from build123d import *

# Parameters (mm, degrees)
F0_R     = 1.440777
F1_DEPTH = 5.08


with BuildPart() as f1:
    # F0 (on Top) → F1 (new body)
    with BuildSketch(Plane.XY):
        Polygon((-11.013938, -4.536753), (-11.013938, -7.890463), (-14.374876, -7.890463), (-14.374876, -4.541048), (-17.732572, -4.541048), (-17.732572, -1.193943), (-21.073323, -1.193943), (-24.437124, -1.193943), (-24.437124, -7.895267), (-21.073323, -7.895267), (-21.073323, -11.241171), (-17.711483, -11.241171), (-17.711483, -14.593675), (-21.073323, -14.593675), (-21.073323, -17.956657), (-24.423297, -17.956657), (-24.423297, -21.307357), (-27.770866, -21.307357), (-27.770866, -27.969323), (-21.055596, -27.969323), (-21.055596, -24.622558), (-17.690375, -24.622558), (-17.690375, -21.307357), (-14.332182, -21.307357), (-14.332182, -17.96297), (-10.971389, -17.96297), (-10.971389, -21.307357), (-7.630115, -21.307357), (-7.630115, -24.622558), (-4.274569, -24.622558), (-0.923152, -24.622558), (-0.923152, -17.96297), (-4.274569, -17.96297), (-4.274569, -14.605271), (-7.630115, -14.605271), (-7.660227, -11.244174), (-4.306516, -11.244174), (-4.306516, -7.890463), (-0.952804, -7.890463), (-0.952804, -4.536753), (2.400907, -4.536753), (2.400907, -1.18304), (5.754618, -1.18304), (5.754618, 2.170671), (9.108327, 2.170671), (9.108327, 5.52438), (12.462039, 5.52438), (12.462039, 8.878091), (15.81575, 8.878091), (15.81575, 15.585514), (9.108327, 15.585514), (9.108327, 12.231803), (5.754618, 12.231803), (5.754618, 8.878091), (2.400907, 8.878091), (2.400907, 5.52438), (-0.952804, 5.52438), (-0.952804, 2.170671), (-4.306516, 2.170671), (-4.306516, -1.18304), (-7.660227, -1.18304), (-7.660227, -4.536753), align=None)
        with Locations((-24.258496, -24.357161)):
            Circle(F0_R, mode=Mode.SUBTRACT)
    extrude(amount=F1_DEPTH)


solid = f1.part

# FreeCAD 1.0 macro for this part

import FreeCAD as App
import Part
import Sketcher

V = App.Vector

doc = App.newDocument("Part")
params = doc.addObject("Spreadsheet::Sheet", "Params")
for row, (alias, value) in enumerate([
    ("pad1_length", "0.2 in"),
], start=1):
    params.set(f"A{row}", alias)
    params.set(f"B{row}", "=" + value)
    params.setAlias(f"B{row}", alias)

body = doc.addObject("PartDesign::Body", "Body")

sketch1 = body.newObject("Sketcher::SketchObject", "Sketch")
sketch1.AttachmentSupport = (doc.getObject("XY_Plane"), [""])
sketch1.MapMode = "FlatFace"
sketch1.addGeometry(Part.LineSegment(V(-11, -4.5, 0), V(-11, -7.9, 0)), False)
sketch1.addGeometry(Part.LineSegment(V(-11, -7.9, 0), V(-14.4, -7.9, 0)), False)
sketch1.addGeometry(Part.LineSegment(V(-14.4, -7.9, 0), V(-14.4, -4.5, 0)), False)
sketch1.addGeometry(Part.LineSegment(V(-14.4, -4.5, 0), V(-17.7, -4.5, 0)), False)
sketch1.addGeometry(Part.LineSegment(V(-17.7, -4.5, 0), V(-17.7, -1.2, 0)), False)
sketch1.addGeometry(Part.LineSegment(V(-17.7, -1.2, 0), V(-24.4, -1.2, 0)), False)
sketch1.addGeometry(Part.LineSegment(V(-24.4, -1.2, 0), V(-24.4, -7.9, 0)), False)
sketch1.addGeometry(Part.LineSegment(V(-24.4, -7.9, 0), V(-21.1, -7.9, 0)), False)
sketch1.addGeometry(Part.LineSegment(V(-21.1, -7.9, 0), V(-21.1, -11.2, 0)), False)
sketch1.addGeometry(Part.LineSegment(V(-21.1, -11.2, 0), V(-17.7, -11.2, 0)), False)
sketch1.addGeometry(Part.LineSegment(V(-17.7, -11.2, 0), V(-17.7, -14.6, 0)), False)
sketch1.addGeometry(Part.LineSegment(V(-17.7, -14.6, 0), V(-21.1, -14.6, 0)), False)
sketch1.addGeometry(Part.LineSegment(V(-21.1, -14.6, 0), V(-21.1, -18, 0)), False)
sketch1.addGeometry(Part.LineSegment(V(-21.1, -18, 0), V(-24.4, -18, 0)), False)
sketch1.addGeometry(Part.LineSegment(V(-24.4, -18, 0), V(-24.4, -21.3, 0)), False)
sketch1.addGeometry(Part.LineSegment(V(-24.4, -21.3, 0), V(-27.8, -21.3, 0)), False)
sketch1.addGeometry(Part.LineSegment(V(-27.8, -21.3, 0), V(-27.8, -28, 0)), False)
sketch1.addGeometry(Part.LineSegment(V(-27.8, -28, 0), V(-21.1, -28, 0)), False)
sketch1.addGeometry(Part.LineSegment(V(-21.1, -28, 0), V(-21.1, -24.6, 0)), False)
sketch1.addGeometry(Part.LineSegment(V(-21.1, -24.6, 0), V(-17.7, -24.6, 0)), False)
sketch1.addGeometry(Part.LineSegment(V(-17.7, -24.6, 0), V(-17.7, -21.3, 0)), False)
sketch1.addGeometry(Part.LineSegment(V(-17.7, -21.3, 0), V(-14.3, -21.3, 0)), False)
sketch1.addGeometry(Part.LineSegment(V(-14.3, -21.3, 0), V(-14.3, -18, 0)), False)
sketch1.addGeometry(Part.LineSegment(V(-14.3, -18, 0), V(-11, -18, 0)), False)
sketch1.addGeometry(Part.LineSegment(V(-11, -18, 0), V(-11, -21.3, 0)), False)
sketch1.addGeometry(Part.LineSegment(V(-11, -21.3, 0), V(-7.6, -21.3, 0)), False)
sketch1.addGeometry(Part.LineSegment(V(-7.6, -21.3, 0), V(-7.6, -24.6, 0)), False)
sketch1.addGeometry(Part.LineSegment(V(-7.6, -24.6, 0), V(-0.9, -24.6, 0)), False)
sketch1.addGeometry(Part.LineSegment(V(-0.9, -24.6, 0), V(-0.9, -18, 0)), False)
sketch1.addGeometry(Part.LineSegment(V(-0.9, -18, 0), V(-4.3, -18, 0)), False)
sketch1.addGeometry(Part.LineSegment(V(-4.3, -18, 0), V(-4.3, -14.6, 0)), False)
sketch1.addGeometry(Part.LineSegment(V(-4.3, -14.6, 0), V(-7.6, -14.6, 0)), False)
sketch1.addGeometry(Part.LineSegment(V(-7.6, -14.6, 0), V(-7.7, -11.2, 0)), False)
sketch1.addGeometry(Part.LineSegment(V(-7.7, -11.2, 0), V(-4.3, -11.2, 0)), False)
sketch1.addGeometry(Part.LineSegment(V(-4.3, -11.2, 0), V(-4.3, -7.9, 0)), False)
sketch1.addGeometry(Part.LineSegment(V(-4.3, -7.9, 0), V(-1, -7.9, 0)), False)
sketch1.addGeometry(Part.LineSegment(V(-1, -7.9, 0), V(-1, -4.5, 0)), False)
sketch1.addGeometry(Part.LineSegment(V(-1, -4.5, 0), V(2.4, -4.5, 0)), False)
sketch1.addGeometry(Part.LineSegment(V(2.4, -4.5, 0), V(2.4, -1.2, 0)), False)
sketch1.addGeometry(Part.LineSegment(V(2.4, -1.2, 0), V(5.8, -1.2, 0)), False)
sketch1.addGeometry(Part.LineSegment(V(5.8, -1.2, 0), V(5.8, 2.2, 0)), False)
sketch1.addGeometry(Part.LineSegment(V(5.8, 2.2, 0), V(9.1, 2.2, 0)), False)
sketch1.addGeometry(Part.LineSegment(V(9.1, 2.2, 0), V(9.1, 5.5, 0)), False)
sketch1.addGeometry(Part.LineSegment(V(9.1, 5.5, 0), V(12.5, 5.5, 0)), False)
sketch1.addGeometry(Part.LineSegment(V(12.5, 5.5, 0), V(12.5, 8.9, 0)), False)
sketch1.addGeometry(Part.LineSegment(V(12.5, 8.9, 0), V(15.8, 8.9, 0)), False)
sketch1.addGeometry(Part.LineSegment(V(15.8, 8.9, 0), V(15.8, 15.6, 0)), False)
sketch1.addGeometry(Part.LineSegment(V(15.8, 15.6, 0), V(9.1, 15.6, 0)), False)
sketch1.addGeometry(Part.LineSegment(V(9.1, 15.6, 0), V(9.1, 12.2, 0)), False)
sketch1.addGeometry(Part.LineSegment(V(9.1, 12.2, 0), V(5.8, 12.2, 0)), False)
sketch1.addGeometry(Part.LineSegment(V(5.8, 12.2, 0), V(5.8, 8.9, 0)), False)
sketch1.addGeometry(Part.LineSegment(V(5.8, 8.9, 0), V(2.4, 8.9, 0)), False)
sketch1.addGeometry(Part.LineSegment(V(2.4, 8.9, 0), V(2.4, 5.5, 0)), False)
sketch1.addGeometry(Part.LineSegment(V(2.4, 5.5, 0), V(-1, 5.5, 0)), False)
sketch1.addGeometry(Part.LineSegment(V(-1, 5.5, 0), V(-1, 2.2, 0)), False)
sketch1.addGeometry(Part.LineSegment(V(-1, 2.2, 0), V(-4.3, 2.2, 0)), False)
sketch1.addGeometry(Part.LineSegment(V(-4.3, 2.2, 0), V(-4.3, -1.2, 0)), False)
sketch1.addGeometry(Part.LineSegment(V(-4.3, -1.2, 0), V(-7.7, -1.2, 0)), False)
sketch1.addGeometry(Part.LineSegment(V(-7.7, -1.2, 0), V(-7.7, -4.5, 0)), False)
sketch1.addGeometry(Part.LineSegment(V(-7.7, -4.5, 0), V(-11, -4.5, 0)), False)
sketch1.addGeometry(Part.Circle(V(-24.3, -24.4, 0), V(0, 0, 1), 1.4), False)
sketch1.addConstraint(Sketcher.Constraint("Coincident", 0, 2, 1, 1))
sketch1.addConstraint(Sketcher.Constraint("Coincident", 1, 2, 2, 1))
sketch1.addConstraint(Sketcher.Constraint("Coincident", 2, 2, 3, 1))
sketch1.addConstraint(Sketcher.Constraint("Coincident", 3, 2, 4, 1))
sketch1.addConstraint(Sketcher.Constraint("Coincident", 4, 2, 5, 1))
sketch1.addConstraint(Sketcher.Constraint("Coincident", 5, 2, 6, 1))
sketch1.addConstraint(Sketcher.Constraint("Coincident", 6, 2, 7, 1))
sketch1.addConstraint(Sketcher.Constraint("Coincident", 7, 2, 8, 1))
sketch1.addConstraint(Sketcher.Constraint("Coincident", 8, 2, 9, 1))
sketch1.addConstraint(Sketcher.Constraint("Coincident", 9, 2, 10, 1))
sketch1.addConstraint(Sketcher.Constraint("Coincident", 10, 2, 11, 1))
sketch1.addConstraint(Sketcher.Constraint("Coincident", 11, 2, 12, 1))
sketch1.addConstraint(Sketcher.Constraint("Coincident", 12, 2, 13, 1))
sketch1.addConstraint(Sketcher.Constraint("Coincident", 13, 2, 14, 1))
sketch1.addConstraint(Sketcher.Constraint("Coincident", 14, 2, 15, 1))
sketch1.addConstraint(Sketcher.Constraint("Coincident", 15, 2, 16, 1))
sketch1.addConstraint(Sketcher.Constraint("Coincident", 16, 2, 17, 1))
sketch1.addConstraint(Sketcher.Constraint("Coincident", 17, 2, 18, 1))
sketch1.addConstraint(Sketcher.Constraint("Coincident", 18, 2, 19, 1))
sketch1.addConstraint(Sketcher.Constraint("Coincident", 19, 2, 20, 1))
sketch1.addConstraint(Sketcher.Constraint("Coincident", 20, 2, 21, 1))
sketch1.addConstraint(Sketcher.Constraint("Coincident", 21, 2, 22, 1))
sketch1.addConstraint(Sketcher.Constraint("Coincident", 22, 2, 23, 1))
sketch1.addConstraint(Sketcher.Constraint("Coincident", 23, 2, 24, 1))
sketch1.addConstraint(Sketcher.Constraint("Coincident", 24, 2, 25, 1))
sketch1.addConstraint(Sketcher.Constraint("Coincident", 25, 2, 26, 1))
sketch1.addConstraint(Sketcher.Constraint("Coincident", 26, 2, 27, 1))
sketch1.addConstraint(Sketcher.Constraint("Coincident", 27, 2, 28, 1))
sketch1.addConstraint(Sketcher.Constraint("Coincident", 28, 2, 29, 1))
sketch1.addConstraint(Sketcher.Constraint("Coincident", 29, 2, 30, 1))
sketch1.addConstraint(Sketcher.Constraint("Coincident", 30, 2, 31, 1))
sketch1.addConstraint(Sketcher.Constraint("Coincident", 31, 2, 32, 1))
sketch1.addConstraint(Sketcher.Constraint("Coincident", 32, 2, 33, 1))
sketch1.addConstraint(Sketcher.Constraint("Coincident", 33, 2, 34, 1))
sketch1.addConstraint(Sketcher.Constraint("Coincident", 34, 2, 35, 1))
sketch1.addConstraint(Sketcher.Constraint("Coincident", 35, 2, 36, 1))
sketch1.addConstraint(Sketcher.Constraint("Coincident", 36, 2, 37, 1))
sketch1.addConstraint(Sketcher.Constraint("Coincident", 37, 2, 38, 1))
sketch1.addConstraint(Sketcher.Constraint("Coincident", 38, 2, 39, 1))
sketch1.addConstraint(Sketcher.Constraint("Coincident", 39, 2, 40, 1))
sketch1.addConstraint(Sketcher.Constraint("Coincident", 40, 2, 41, 1))
sketch1.addConstraint(Sketcher.Constraint("Coincident", 41, 2, 42, 1))
sketch1.addConstraint(Sketcher.Constraint("Coincident", 42, 2, 43, 1))
sketch1.addConstraint(Sketcher.Constraint("Coincident", 43, 2, 44, 1))
sketch1.addConstraint(Sketcher.Constraint("Coincident", 44, 2, 45, 1))
sketch1.addConstraint(Sketcher.Constraint("Coincident", 45, 2, 46, 1))
sketch1.addConstraint(Sketcher.Constraint("Coincident", 46, 2, 47, 1))
sketch1.addConstraint(Sketcher.Constraint("Coincident", 47, 2, 48, 1))
sketch1.addConstraint(Sketcher.Constraint("Coincident", 48, 2, 49, 1))
sketch1.addConstraint(Sketcher.Constraint("Coincident", 49, 2, 50, 1))
sketch1.addConstraint(Sketcher.Constraint("Coincident", 50, 2, 51, 1))
sketch1.addConstraint(Sketcher.Constraint("Coincident", 51, 2, 52, 1))
sketch1.addConstraint(Sketcher.Constraint("Coincident", 52, 2, 53, 1))
sketch1.addConstraint(Sketcher.Constraint("Coincident", 53, 2, 54, 1))
sketch1.addConstraint(Sketcher.Constraint("Coincident", 54, 2, 55, 1))
sketch1.addConstraint(Sketcher.Constraint("Coincident", 55, 2, 56, 1))
sketch1.addConstraint(Sketcher.Constraint("Coincident", 56, 2, 57, 1))
sketch1.addConstraint(Sketcher.Constraint("Coincident", 57, 2, 58, 1))
sketch1.addConstraint(Sketcher.Constraint("Coincident", 58, 2, 59, 1))
sketch1.addConstraint(Sketcher.Constraint("Coincident", 59, 2, 0, 1))
sketch1.addConstraint(Sketcher.Constraint("Vertical", 0))
sketch1.addConstraint(Sketcher.Constraint("Horizontal", 1))
sketch1.addConstraint(Sketcher.Constraint("Vertical", 2))
sketch1.addConstraint(Sketcher.Constraint("Horizontal", 3))
sketch1.addConstraint(Sketcher.Constraint("Vertical", 4))
sketch1.addConstraint(Sketcher.Constraint("Horizontal", 5))
sketch1.addConstraint(Sketcher.Constraint("Vertical", 6))
sketch1.addConstraint(Sketcher.Constraint("Horizontal", 7))
sketch1.addConstraint(Sketcher.Constraint("Vertical", 8))
sketch1.addConstraint(Sketcher.Constraint("Horizontal", 9))
sketch1.addConstraint(Sketcher.Constraint("Vertical", 10))
sketch1.addConstraint(Sketcher.Constraint("Horizontal", 11))
sketch1.addConstraint(Sketcher.Constraint("Vertical", 12))
sketch1.addConstraint(Sketcher.Constraint("Horizontal", 13))
sketch1.addConstraint(Sketcher.Constraint("Vertical", 14))
sketch1.addConstraint(Sketcher.Constraint("Horizontal", 15))
sketch1.addConstraint(Sketcher.Constraint("Vertical", 16))
sketch1.addConstraint(Sketcher.Constraint("Horizontal", 17))
sketch1.addConstraint(Sketcher.Constraint("Vertical", 18))
sketch1.addConstraint(Sketcher.Constraint("Horizontal", 19))
sketch1.addConstraint(Sketcher.Constraint("Vertical", 20))
sketch1.addConstraint(Sketcher.Constraint("Horizontal", 21))
sketch1.addConstraint(Sketcher.Constraint("Vertical", 22))
sketch1.addConstraint(Sketcher.Constraint("Horizontal", 23))
sketch1.addConstraint(Sketcher.Constraint("Vertical", 24))
sketch1.addConstraint(Sketcher.Constraint("Horizontal", 25))
sketch1.addConstraint(Sketcher.Constraint("Vertical", 26))
sketch1.addConstraint(Sketcher.Constraint("Horizontal", 27))
sketch1.addConstraint(Sketcher.Constraint("Vertical", 28))
sketch1.addConstraint(Sketcher.Constraint("Horizontal", 29))
sketch1.addConstraint(Sketcher.Constraint("Vertical", 30))
sketch1.addConstraint(Sketcher.Constraint("Horizontal", 31))
sketch1.addConstraint(Sketcher.Constraint("Horizontal", 33))
sketch1.addConstraint(Sketcher.Constraint("Vertical", 34))
sketch1.addConstraint(Sketcher.Constraint("Horizontal", 35))
sketch1.addConstraint(Sketcher.Constraint("Vertical", 36))
sketch1.addConstraint(Sketcher.Constraint("Horizontal", 37))
sketch1.addConstraint(Sketcher.Constraint("Vertical", 38))
sketch1.addConstraint(Sketcher.Constraint("Horizontal", 39))
sketch1.addConstraint(Sketcher.Constraint("Vertical", 40))
sketch1.addConstraint(Sketcher.Constraint("Horizontal", 41))
sketch1.addConstraint(Sketcher.Constraint("Vertical", 42))
sketch1.addConstraint(Sketcher.Constraint("Horizontal", 43))
sketch1.addConstraint(Sketcher.Constraint("Vertical", 44))
sketch1.addConstraint(Sketcher.Constraint("Horizontal", 45))
sketch1.addConstraint(Sketcher.Constraint("Vertical", 46))
sketch1.addConstraint(Sketcher.Constraint("Horizontal", 47))
sketch1.addConstraint(Sketcher.Constraint("Vertical", 48))
sketch1.addConstraint(Sketcher.Constraint("Horizontal", 49))
sketch1.addConstraint(Sketcher.Constraint("Vertical", 50))
sketch1.addConstraint(Sketcher.Constraint("Horizontal", 51))
sketch1.addConstraint(Sketcher.Constraint("Vertical", 52))
sketch1.addConstraint(Sketcher.Constraint("Horizontal", 53))
sketch1.addConstraint(Sketcher.Constraint("Vertical", 54))
sketch1.addConstraint(Sketcher.Constraint("Horizontal", 55))
sketch1.addConstraint(Sketcher.Constraint("Vertical", 56))
sketch1.addConstraint(Sketcher.Constraint("Horizontal", 57))
sketch1.addConstraint(Sketcher.Constraint("Vertical", 58))
sketch1.addConstraint(Sketcher.Constraint("Horizontal", 59))
sketch1.addConstraint(Sketcher.Constraint("Horizontal", 15, 2, 20, 2))
sketch1.addConstraint(Sketcher.Constraint("Horizontal", 21, 2, 24, 2))
sketch1.addConstraint(Sketcher.Constraint("Horizontal", 19, 2, 26, 2))
sketch1.addConstraint(Sketcher.Constraint("Horizontal", 23, 2, 28, 2))
sketch1.addConstraint(Sketcher.Constraint("Horizontal", 1, 2, 34, 2))
sketch1.addConstraint(Sketcher.Constraint("Horizontal", 45, 2, 50, 2))
sketch1.addConstraint(Sketcher.Constraint("Horizontal", 43, 2, 52, 2))
sketch1.addConstraint(Sketcher.Constraint("Horizontal", 41, 2, 54, 2))
sketch1.addConstraint(Sketcher.Constraint("Horizontal", 39, 2, 56, 2))
sketch1.addConstraint(Sketcher.Constraint("Horizontal", 37, 2, 58, 2))
sketch1.addConstraint(Sketcher.Constraint("Vertical", 8, 2, 11, 2))
sketch1.addConstraint(Sketcher.Constraint("Vertical", 26, 2, 31, 2))
sketch1.addConstraint(Sketcher.Constraint("Vertical", 42, 2, 47, 2))
sketch1.addConstraint(Sketcher.Constraint("Vertical", 40, 2, 49, 2))
sketch1.addConstraint(Sketcher.Constraint("Vertical", 38, 2, 51, 2))
sketch1.addConstraint(Sketcher.Constraint("Vertical", 36, 2, 53, 2))
sketch1.addConstraint(Sketcher.Constraint("Vertical", 34, 2, 55, 2))
sketch1.addConstraint(Sketcher.Constraint("Vertical", 32, 2, 57, 2))
sketch1.addConstraint(Sketcher.Constraint("Equal", 33, 35))
sketch1.addConstraint(Sketcher.Constraint("Equal", 35, 37))
sketch1.addConstraint(Sketcher.Constraint("Equal", 37, 39))
sketch1.addConstraint(Sketcher.Constraint("Equal", 39, 43))
sketch1.addConstraint(Sketcher.Constraint("Equal", 43, 45))
sketch1.addConstraint(Sketcher.Constraint("Equal", 45, 49))
sketch1.addConstraint(Sketcher.Constraint("Equal", 57, 59))
sketch1.addConstraint(Sketcher.Constraint("Equal", 59, 0))
sketch1.addConstraint(Sketcher.Constraint("Equal", 0, 34))
sketch1.addConstraint(Sketcher.Constraint("Equal", 55, 38))
sketch1.addConstraint(Sketcher.Constraint("Equal", 38, 40))
sketch1.addConstraint(Sketcher.Constraint("Equal", 36, 42))
sketch1.addConstraint(Sketcher.Constraint("Equal", 42, 44))
sketch1.addConstraint(Sketcher.Constraint("Equal", 47, 46))
sketch1.addConstraint(Sketcher.Constraint("Equal", 44, 48))
sketch1.addConstraint(Sketcher.Constraint("Diameter", 60, 2.881554))
sketch1.addConstraint(Sketcher.Constraint("DistanceX", 7, 1, 7, 2, 3.363801))
sketch1.addConstraint(Sketcher.Constraint("DistanceY", 14, 2, 14, 1, 3.3507))
sketch1.addConstraint(Sketcher.Constraint("DistanceY", 20, 1, 20, 2, 3.315201))
sketch1.addConstraint(Sketcher.Constraint("DistanceY", 30, 1, 30, 2, 3.357699))
sketch1.addConstraint(Sketcher.Constraint("DistanceX", 1, 2, 1, 1, 3.360938))
sketch1.addConstraint(Sketcher.Constraint("DistanceX", 5, 2, 5, 1, 6.704552))
sketch1.addConstraint(Sketcher.Constraint("DistanceX", 9, 1, 9, 2, 3.36184))
sketch1.addConstraint(Sketcher.Constraint("DistanceX", 15, 2, 15, 1, 3.347569))
sketch1.addConstraint(Sketcher.Constraint("DistanceX", 17, 1, 17, 2, 6.71527))
sketch1.addConstraint(Sketcher.Constraint("DistanceX", 19, 1, 19, 2, 3.365221))
sketch1.addConstraint(Sketcher.Constraint("DistanceX", 33, 1, 33, 2, 3.353711))
sketch1.addConstraint(Sketcher.Constraint("DistanceY", 28, 1, 28, 2, 6.659588))
sketch1.addConstraint(Sketcher.Constraint("Distance", 32, 3.361232))
sketch1.addConstraint(Sketcher.Constraint("DistanceX", 3, 2, 3, 1, 3.357696))
sketch1.addConstraint(Sketcher.Constraint("DistanceX", 13, 2, 13, 1, 3.349974))
sketch1.addConstraint(Sketcher.Constraint("DistanceX", 21, 1, 21, 2, 3.358193))
sketch1.addConstraint(Sketcher.Constraint("DistanceX", 23, 1, 23, 2, 3.360793))
sketch1.addConstraint(Sketcher.Constraint("DistanceX", 25, 1, 25, 2, 3.341274))
sketch1.addConstraint(Sketcher.Constraint("DistanceX", 27, 1, 27, 2, 6.706963))
sketch1.addConstraint(Sketcher.Constraint("DistanceX", 29, 2, 29, 1, 3.351417))
sketch1.addConstraint(Sketcher.Constraint("DistanceY", 2, 1, 2, 2, 3.349415))
sketch1.addConstraint(Sketcher.Constraint("DistanceY", 4, 1, 4, 2, 3.347105))
sketch1.addConstraint(Sketcher.Constraint("DistanceY", 6, 2, 6, 1, 6.701324))
sketch1.addConstraint(Sketcher.Constraint("DistanceY", 8, 2, 8, 1, 3.345904))
sketch1.addConstraint(Sketcher.Constraint("DistanceY", 10, 2, 10, 1, 3.352504))
sketch1.addConstraint(Sketcher.Constraint("DistanceY", 16, 2, 16, 1, 6.661966))
sketch1.addConstraint(Sketcher.Constraint("DistanceY", 60, 3, -1, 1, 24.357161))
sketch1.addConstraint(Sketcher.Constraint("DistanceY", 8, 2, -1, 1, 11.241171))
sketch1.addConstraint(Sketcher.Constraint("DistanceX", 23, 2, -1, 1, 10.971389))
sketch1.addConstraint(Sketcher.Constraint("DistanceX", 60, 3, -1, 1, 24.258496))
pad1 = body.newObject("PartDesign::Pad", "Pad")
pad1.Profile = sketch1
pad1.setExpression("Length", "Params.pad1_length")

doc.recompute()
